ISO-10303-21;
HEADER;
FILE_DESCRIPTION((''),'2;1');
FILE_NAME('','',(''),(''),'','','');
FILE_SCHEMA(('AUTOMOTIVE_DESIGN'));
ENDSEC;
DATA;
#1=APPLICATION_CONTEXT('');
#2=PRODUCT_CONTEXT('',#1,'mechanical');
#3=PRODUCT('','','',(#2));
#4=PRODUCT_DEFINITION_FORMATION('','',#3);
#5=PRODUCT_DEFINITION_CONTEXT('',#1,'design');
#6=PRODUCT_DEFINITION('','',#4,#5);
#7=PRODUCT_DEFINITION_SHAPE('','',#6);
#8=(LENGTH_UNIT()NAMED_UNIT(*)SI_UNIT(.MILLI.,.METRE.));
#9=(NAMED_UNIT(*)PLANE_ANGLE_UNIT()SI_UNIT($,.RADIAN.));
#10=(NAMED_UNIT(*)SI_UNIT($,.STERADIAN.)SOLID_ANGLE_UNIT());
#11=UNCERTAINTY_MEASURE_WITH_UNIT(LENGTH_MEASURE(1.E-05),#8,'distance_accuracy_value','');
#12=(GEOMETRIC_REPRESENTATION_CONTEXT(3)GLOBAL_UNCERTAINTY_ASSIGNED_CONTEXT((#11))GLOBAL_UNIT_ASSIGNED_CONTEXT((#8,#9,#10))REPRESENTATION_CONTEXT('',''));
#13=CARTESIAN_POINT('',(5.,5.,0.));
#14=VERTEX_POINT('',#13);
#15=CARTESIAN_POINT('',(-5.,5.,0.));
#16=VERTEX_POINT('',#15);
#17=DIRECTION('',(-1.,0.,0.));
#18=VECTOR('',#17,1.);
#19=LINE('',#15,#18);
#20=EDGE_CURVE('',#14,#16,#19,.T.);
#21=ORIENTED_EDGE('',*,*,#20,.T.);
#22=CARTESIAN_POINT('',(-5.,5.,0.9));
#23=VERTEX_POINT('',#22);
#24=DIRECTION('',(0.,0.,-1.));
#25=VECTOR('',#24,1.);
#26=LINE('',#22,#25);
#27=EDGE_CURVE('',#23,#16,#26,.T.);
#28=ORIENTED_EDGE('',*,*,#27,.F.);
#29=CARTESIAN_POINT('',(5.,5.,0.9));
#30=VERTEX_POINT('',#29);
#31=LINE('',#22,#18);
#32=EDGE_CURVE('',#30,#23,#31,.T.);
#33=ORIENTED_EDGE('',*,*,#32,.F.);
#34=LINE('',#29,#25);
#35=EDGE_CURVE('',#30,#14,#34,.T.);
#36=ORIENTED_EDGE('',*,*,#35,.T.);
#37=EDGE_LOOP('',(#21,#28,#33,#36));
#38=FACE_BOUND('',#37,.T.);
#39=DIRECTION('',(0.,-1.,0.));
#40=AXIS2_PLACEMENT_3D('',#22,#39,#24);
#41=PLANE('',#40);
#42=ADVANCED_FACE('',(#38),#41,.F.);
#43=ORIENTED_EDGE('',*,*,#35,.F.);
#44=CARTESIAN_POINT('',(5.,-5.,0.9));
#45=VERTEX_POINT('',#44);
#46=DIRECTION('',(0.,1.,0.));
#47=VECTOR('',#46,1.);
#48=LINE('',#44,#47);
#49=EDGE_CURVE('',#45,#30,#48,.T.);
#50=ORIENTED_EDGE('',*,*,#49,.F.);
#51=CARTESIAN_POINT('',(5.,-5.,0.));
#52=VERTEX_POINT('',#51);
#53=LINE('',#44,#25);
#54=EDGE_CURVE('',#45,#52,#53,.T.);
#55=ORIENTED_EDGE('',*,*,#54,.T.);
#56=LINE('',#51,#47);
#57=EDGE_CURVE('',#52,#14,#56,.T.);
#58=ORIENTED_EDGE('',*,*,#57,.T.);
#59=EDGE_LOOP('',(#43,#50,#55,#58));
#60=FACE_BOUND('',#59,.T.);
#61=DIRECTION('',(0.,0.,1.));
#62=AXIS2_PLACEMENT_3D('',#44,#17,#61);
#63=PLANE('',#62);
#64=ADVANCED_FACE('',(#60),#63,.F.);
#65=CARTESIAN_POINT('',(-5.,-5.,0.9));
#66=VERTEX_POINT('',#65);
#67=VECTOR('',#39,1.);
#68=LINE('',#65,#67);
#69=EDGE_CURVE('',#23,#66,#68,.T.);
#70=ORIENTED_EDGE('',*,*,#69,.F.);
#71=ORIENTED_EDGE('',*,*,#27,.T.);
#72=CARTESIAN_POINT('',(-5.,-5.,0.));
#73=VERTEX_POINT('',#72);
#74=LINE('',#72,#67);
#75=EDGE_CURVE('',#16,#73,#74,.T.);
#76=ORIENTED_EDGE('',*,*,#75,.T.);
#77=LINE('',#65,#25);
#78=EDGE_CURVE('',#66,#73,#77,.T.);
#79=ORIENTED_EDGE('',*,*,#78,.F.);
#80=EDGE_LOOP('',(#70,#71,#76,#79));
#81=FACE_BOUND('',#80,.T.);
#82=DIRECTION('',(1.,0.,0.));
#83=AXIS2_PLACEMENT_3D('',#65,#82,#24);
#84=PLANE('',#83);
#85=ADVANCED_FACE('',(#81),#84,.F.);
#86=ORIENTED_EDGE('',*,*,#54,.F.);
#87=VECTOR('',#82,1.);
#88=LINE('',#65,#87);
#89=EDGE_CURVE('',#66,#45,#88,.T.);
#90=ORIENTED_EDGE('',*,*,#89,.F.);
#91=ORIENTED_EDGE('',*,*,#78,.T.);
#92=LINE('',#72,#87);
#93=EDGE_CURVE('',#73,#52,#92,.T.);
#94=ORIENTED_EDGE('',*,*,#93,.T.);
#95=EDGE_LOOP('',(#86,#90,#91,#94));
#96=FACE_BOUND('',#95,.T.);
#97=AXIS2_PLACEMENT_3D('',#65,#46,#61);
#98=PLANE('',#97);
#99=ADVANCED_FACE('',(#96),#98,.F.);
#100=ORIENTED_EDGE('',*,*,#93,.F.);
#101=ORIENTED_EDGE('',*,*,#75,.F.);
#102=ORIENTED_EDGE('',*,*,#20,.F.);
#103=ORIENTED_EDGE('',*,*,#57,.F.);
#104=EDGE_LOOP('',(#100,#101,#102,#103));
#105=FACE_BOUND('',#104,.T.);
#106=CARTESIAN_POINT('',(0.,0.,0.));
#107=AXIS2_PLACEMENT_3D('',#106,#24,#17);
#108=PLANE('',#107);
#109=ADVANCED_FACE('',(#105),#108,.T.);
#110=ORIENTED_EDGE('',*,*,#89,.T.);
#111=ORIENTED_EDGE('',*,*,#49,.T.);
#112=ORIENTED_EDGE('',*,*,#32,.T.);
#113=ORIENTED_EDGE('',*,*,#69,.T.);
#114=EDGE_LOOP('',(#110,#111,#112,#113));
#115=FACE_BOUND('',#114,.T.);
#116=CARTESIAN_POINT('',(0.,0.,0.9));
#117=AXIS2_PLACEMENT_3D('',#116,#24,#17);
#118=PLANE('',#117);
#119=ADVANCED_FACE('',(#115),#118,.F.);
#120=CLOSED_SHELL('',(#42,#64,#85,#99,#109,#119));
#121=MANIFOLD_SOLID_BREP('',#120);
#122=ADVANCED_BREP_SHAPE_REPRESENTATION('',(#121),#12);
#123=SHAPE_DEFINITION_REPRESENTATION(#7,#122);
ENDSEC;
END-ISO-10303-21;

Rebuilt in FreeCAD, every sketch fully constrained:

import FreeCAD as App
import Part
import Sketcher

V = App.Vector
Q = App.Units.Quantity


def add_polygon(sketch, points):
    """Adds a closed chain of lines whose ends are joined by coincident constraints."""
    first, n = sketch.GeometryCount, len(points)
    for a, b in zip(points, points[1:] + points[:1]):
        sketch.addGeometry(Part.LineSegment(App.Vector(*a, 0), App.Vector(*b, 0)), False)
    for i in range(n):
        sketch.addConstraint(Sketcher.Constraint("Coincident", first + i, 2, first + (i + 1) % n, 1))

doc = App.newDocument("Part")
params = doc.addObject("Spreadsheet::Sheet", "Params")
for row, (alias, value) in enumerate([
    ("sketch1_width", "10 mm"),
    ("pad1_length", "0.9 mm"),
], start=1):
    params.set(f"A{row}", alias)
    params.set(f"B{row}", "=" + value)
    params.setAlias(f"B{row}", alias)

body = doc.addObject("PartDesign::Body", "Body")

# Sketch on XY plane
sketch1 = doc.addObject("Sketcher::SketchObject", "Sketch")
body.addObject(sketch1)
sketch1.AttachmentSupport = (doc.XY_Plane, [""])
sketch1.MapMode = "FlatFace"
add_polygon(sketch1, [(-5, 5), (-5, -5), (5, -5), (5, 5)])  # lines 0-3
sketch1.addConstraint([
    Sketcher.Constraint("Vertical", 0),
    Sketcher.Constraint("Horizontal", 1),
    Sketcher.Constraint("Vertical", 2),
    Sketcher.Constraint("Horizontal", 3),
    Sketcher.Constraint("Symmetric", 0, 2, 2, 2, -1, 1),
    Sketcher.Constraint("Equal", 3, 0),
    Sketcher.Constraint("DistanceX", 1, 1, 1, 2, Q("10 mm")),
])
sketch1.setExpression("Constraints[10]", "Params.sketch1_width")
pad1 = doc.addObject("PartDesign::Pad", "Pad")
body.addObject(pad1)
pad1.Profile = sketch1
pad1.setExpression("Length", "Params.pad1_length")

doc.recompute()
